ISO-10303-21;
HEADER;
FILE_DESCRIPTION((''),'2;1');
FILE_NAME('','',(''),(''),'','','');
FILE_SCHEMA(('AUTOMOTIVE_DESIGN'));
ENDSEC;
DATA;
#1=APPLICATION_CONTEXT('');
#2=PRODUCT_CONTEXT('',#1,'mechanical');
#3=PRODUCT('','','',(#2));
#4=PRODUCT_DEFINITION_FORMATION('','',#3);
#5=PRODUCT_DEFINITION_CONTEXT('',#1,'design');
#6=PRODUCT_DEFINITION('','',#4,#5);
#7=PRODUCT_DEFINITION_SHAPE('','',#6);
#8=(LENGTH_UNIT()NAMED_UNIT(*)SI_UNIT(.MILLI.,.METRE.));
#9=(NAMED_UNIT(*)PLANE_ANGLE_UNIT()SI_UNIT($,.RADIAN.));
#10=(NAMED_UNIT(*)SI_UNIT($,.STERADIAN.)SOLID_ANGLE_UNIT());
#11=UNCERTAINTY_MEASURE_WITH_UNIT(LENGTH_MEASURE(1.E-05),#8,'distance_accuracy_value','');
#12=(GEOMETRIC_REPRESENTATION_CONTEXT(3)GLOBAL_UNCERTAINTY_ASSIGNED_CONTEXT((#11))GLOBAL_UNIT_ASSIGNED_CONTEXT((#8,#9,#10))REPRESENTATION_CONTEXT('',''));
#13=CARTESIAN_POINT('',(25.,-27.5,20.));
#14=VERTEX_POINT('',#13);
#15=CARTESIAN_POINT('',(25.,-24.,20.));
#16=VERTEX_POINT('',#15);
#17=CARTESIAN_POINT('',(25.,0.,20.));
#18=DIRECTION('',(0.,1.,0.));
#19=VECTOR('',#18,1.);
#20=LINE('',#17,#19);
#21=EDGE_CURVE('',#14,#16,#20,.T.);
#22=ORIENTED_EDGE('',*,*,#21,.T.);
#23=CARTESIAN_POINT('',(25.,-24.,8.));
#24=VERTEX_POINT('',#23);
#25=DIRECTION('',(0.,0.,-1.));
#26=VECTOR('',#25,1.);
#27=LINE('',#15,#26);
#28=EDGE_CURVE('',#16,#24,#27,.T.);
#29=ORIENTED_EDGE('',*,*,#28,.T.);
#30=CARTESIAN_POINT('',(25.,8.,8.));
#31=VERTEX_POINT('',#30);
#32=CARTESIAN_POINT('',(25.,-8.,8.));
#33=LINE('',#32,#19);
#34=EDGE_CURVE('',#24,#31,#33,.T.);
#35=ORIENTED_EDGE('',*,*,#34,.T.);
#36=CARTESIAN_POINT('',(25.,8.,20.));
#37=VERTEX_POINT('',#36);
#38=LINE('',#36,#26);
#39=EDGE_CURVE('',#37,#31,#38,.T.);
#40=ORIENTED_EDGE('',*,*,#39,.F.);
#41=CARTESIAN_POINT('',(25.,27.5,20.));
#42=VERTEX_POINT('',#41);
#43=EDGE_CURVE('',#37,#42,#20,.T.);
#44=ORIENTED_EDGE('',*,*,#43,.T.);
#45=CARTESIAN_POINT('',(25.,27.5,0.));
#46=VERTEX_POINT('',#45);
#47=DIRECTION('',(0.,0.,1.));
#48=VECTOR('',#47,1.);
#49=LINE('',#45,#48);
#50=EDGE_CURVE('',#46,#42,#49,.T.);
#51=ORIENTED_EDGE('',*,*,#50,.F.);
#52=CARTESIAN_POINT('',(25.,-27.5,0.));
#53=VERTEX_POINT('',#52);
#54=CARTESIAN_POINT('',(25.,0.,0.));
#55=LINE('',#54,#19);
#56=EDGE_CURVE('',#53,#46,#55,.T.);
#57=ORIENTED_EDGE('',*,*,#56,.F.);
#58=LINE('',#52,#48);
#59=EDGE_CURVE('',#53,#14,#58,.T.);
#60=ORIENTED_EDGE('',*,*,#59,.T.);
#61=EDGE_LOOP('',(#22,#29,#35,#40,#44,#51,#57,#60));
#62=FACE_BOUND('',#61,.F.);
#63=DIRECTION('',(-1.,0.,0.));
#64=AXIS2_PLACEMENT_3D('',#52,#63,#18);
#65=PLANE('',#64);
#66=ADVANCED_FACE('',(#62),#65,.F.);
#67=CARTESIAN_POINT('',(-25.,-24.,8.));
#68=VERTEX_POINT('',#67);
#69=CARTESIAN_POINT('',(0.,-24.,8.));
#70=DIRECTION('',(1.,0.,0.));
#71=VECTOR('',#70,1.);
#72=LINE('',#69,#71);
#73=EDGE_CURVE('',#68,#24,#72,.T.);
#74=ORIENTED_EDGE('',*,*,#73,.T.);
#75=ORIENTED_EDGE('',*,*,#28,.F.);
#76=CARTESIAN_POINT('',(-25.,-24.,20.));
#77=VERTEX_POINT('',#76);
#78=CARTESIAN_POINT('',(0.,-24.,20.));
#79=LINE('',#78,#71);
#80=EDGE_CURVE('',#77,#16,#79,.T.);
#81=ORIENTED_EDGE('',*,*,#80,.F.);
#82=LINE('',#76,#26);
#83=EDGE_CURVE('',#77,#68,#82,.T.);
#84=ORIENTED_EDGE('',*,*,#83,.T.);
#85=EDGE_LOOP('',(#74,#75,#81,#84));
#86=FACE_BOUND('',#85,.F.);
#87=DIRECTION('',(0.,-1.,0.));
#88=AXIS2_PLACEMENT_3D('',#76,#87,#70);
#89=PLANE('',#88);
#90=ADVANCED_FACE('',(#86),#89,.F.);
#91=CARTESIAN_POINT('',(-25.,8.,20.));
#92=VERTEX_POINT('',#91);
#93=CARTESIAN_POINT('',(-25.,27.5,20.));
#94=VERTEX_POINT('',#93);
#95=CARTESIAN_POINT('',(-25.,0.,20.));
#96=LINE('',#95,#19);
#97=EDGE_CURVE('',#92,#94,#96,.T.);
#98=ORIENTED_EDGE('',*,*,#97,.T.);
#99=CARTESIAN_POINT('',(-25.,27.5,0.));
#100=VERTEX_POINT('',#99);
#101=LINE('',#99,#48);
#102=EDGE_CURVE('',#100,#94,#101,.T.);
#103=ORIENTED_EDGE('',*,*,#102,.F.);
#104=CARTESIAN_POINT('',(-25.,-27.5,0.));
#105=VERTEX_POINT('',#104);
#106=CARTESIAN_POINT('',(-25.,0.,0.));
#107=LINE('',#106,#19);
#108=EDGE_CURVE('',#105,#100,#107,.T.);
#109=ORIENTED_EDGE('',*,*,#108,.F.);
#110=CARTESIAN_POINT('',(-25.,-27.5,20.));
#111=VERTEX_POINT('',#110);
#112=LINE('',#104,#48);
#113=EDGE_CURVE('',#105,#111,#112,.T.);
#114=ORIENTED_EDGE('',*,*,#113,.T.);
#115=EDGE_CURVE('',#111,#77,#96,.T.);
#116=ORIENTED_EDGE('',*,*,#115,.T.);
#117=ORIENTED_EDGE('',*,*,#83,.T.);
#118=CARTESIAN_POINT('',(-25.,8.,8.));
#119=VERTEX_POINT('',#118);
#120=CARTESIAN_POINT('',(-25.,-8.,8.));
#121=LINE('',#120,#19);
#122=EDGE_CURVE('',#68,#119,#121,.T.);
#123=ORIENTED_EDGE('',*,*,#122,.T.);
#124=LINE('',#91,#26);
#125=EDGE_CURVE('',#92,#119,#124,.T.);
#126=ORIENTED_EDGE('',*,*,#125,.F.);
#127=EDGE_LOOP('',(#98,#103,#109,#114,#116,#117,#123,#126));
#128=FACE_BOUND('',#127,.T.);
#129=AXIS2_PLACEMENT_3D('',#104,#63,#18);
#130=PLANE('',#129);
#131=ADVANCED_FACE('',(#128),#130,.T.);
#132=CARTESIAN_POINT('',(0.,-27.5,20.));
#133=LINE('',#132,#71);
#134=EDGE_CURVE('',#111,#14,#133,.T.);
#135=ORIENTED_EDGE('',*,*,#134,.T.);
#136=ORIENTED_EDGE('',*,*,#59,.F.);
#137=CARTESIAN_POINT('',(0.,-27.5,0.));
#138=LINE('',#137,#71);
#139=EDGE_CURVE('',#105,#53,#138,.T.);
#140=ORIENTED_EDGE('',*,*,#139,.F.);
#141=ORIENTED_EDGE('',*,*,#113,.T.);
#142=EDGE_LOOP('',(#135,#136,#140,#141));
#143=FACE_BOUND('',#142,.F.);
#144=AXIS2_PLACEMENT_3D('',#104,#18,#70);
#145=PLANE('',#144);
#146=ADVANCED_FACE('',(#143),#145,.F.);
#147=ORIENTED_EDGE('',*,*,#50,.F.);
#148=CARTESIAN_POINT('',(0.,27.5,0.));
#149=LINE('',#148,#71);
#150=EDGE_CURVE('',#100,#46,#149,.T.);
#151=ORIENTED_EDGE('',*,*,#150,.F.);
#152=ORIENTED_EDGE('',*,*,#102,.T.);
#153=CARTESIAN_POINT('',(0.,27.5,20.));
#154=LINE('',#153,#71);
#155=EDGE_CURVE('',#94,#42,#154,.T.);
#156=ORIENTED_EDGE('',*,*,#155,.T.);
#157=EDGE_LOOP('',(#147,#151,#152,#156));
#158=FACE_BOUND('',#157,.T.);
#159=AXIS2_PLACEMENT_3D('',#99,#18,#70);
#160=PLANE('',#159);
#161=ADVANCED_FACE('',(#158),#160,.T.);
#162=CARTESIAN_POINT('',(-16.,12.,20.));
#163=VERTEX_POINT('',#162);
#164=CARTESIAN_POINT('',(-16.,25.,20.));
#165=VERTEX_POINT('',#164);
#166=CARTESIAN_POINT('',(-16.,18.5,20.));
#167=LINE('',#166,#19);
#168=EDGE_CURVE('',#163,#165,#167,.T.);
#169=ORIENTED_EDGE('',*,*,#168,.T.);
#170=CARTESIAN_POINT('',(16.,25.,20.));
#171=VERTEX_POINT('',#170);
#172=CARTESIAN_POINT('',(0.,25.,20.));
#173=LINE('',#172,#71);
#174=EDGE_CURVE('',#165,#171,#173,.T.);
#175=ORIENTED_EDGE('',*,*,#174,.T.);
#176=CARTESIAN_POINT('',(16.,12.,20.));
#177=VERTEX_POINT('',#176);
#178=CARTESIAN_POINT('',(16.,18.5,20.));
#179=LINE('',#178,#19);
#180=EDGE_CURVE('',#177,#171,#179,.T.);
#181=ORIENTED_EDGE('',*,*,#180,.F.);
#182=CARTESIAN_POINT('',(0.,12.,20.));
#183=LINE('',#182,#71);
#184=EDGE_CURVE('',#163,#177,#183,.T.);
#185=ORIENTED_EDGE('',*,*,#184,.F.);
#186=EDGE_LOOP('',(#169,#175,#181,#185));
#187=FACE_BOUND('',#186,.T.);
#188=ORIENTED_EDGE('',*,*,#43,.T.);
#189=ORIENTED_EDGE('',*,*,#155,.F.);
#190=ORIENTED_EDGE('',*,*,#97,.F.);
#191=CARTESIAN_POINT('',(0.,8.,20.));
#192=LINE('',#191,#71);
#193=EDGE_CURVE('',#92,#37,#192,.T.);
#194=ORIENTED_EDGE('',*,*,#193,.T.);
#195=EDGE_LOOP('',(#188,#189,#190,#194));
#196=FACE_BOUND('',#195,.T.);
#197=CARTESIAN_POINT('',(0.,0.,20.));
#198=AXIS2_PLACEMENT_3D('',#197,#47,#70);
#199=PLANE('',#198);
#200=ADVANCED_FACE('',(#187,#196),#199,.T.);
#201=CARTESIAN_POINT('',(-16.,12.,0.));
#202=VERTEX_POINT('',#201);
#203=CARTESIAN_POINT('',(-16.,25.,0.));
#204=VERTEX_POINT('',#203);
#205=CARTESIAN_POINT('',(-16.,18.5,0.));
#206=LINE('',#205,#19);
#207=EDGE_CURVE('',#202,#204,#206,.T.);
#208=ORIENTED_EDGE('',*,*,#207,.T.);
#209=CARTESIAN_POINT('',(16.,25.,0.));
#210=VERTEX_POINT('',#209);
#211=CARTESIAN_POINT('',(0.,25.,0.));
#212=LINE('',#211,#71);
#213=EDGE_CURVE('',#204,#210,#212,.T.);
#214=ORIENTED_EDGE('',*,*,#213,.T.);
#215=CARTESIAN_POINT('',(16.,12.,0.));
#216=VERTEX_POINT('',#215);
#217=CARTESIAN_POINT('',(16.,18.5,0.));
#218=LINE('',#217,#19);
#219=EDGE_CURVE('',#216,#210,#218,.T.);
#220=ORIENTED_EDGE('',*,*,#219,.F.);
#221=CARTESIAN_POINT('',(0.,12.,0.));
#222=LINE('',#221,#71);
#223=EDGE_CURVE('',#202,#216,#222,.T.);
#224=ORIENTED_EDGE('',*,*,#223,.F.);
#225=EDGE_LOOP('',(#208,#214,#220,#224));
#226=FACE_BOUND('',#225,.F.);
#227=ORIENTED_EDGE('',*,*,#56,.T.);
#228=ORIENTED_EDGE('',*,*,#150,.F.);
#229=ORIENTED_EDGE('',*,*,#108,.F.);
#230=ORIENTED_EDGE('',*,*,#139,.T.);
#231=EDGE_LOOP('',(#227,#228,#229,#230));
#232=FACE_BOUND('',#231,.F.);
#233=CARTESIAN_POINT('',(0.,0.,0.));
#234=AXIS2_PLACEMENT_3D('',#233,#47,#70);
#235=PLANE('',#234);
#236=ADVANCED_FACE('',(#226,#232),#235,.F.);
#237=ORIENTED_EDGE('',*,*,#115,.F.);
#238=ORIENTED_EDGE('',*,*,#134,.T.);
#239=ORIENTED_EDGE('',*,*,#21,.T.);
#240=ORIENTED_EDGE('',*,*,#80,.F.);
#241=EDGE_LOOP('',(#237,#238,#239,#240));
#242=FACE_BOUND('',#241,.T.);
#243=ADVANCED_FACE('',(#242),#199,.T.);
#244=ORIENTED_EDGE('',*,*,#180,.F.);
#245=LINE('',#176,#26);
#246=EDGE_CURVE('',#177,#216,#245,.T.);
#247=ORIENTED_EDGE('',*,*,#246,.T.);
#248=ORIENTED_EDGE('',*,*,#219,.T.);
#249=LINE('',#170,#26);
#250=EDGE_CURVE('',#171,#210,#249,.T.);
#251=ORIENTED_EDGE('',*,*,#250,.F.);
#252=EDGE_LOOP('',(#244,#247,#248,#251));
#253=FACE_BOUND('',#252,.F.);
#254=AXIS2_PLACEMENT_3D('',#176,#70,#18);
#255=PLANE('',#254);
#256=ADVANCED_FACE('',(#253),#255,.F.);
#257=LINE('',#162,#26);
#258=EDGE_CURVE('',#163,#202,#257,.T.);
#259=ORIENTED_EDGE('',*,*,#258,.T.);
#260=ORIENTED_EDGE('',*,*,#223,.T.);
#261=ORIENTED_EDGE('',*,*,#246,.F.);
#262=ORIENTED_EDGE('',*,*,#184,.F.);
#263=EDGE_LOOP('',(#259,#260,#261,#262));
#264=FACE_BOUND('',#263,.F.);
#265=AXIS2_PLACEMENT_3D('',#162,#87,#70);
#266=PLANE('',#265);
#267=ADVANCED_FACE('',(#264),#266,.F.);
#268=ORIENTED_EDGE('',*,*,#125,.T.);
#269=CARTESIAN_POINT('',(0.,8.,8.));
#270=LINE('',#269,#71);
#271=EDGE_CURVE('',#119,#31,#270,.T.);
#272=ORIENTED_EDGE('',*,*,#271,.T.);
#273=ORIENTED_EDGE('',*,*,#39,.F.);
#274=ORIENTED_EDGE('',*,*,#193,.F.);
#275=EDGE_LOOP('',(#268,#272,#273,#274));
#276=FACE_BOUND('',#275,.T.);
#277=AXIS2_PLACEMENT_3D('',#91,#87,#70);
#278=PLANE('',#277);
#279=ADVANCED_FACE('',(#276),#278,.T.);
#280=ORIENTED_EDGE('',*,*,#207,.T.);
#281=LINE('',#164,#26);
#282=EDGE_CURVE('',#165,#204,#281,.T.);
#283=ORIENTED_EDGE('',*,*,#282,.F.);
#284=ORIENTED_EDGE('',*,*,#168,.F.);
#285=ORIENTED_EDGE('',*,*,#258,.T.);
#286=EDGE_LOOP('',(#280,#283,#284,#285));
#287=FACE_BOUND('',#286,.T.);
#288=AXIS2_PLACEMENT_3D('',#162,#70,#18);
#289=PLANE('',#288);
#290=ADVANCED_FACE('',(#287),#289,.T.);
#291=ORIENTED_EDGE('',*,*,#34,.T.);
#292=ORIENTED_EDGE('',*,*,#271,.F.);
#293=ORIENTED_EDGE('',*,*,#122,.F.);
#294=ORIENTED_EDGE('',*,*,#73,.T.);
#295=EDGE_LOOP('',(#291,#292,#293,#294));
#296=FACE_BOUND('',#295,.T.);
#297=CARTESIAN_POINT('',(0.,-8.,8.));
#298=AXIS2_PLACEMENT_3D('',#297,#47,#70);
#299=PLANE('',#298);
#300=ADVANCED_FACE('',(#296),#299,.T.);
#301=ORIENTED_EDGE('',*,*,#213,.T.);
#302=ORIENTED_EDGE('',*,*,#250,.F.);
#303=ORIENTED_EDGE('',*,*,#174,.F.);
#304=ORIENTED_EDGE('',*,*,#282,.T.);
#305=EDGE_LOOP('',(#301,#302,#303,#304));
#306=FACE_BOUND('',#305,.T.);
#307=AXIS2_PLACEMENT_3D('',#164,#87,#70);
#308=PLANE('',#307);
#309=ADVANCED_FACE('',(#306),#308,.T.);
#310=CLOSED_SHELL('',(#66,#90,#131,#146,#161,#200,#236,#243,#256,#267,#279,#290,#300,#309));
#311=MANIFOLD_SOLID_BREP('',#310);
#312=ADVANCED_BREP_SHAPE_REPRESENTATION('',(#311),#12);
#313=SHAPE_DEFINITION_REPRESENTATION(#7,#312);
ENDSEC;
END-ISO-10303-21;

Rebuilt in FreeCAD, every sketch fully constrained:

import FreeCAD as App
import Part
import Sketcher


def add_polygon(sketch, points):
    """Adds a closed chain of lines whose ends are joined by coincident constraints."""
    first, n = sketch.GeometryCount, len(points)
    for a, b in zip(points, points[1:] + points[:1]):
        sketch.addGeometry(Part.LineSegment(App.Vector(*a, 0), App.Vector(*b, 0)), False)
    for i in range(n):
        sketch.addConstraint(Sketcher.Constraint("Coincident", first + i, 2, first + (i + 1) % n, 1))

doc = App.newDocument("Part")
params = doc.addObject("Spreadsheet::Sheet", "Params")
for row, (alias, value) in enumerate([
    ("sketch1_width", "50 mm"),
    ("sketch1_height", "55 mm"),
    ("pad1_length", "20 mm"),
    ("sketch2_width", "50 mm"),
    ("sketch2_height", "32 mm"),
    ("pocket1_length", "12 mm"),
    ("sketch3_width", "32 mm"),
    ("sketch3_height", "13 mm"),
    ("pocket2_length", "20 mm"),
], start=1):
    params.set(f"A{row}", alias)
    params.set(f"B{row}", "=" + value)
    params.setAlias(f"B{row}", alias)

body = doc.addObject("PartDesign::Body", "Body")

# Sketch on XY plane
sketch1 = body.newObject("Sketcher::SketchObject", "Sketch")
sketch1.AttachmentSupport = (doc.getObject("XY_Plane"), [""])
sketch1.MapMode = "FlatFace"
add_polygon(sketch1, [(-25, 28), (-25, -28), (25, -28), (25, 28)])  # lines 0-3
sketch1.addConstraint(Sketcher.Constraint("Vertical", 0))
sketch1.addConstraint(Sketcher.Constraint("Horizontal", 1))
sketch1.addConstraint(Sketcher.Constraint("Vertical", 2))
sketch1.addConstraint(Sketcher.Constraint("Horizontal", 3))
sketch1.addConstraint(Sketcher.Constraint("Symmetric", 0, 2, 2, 2, -1, 1))
sketch1.addConstraint(Sketcher.Constraint("DistanceX", 1, 1, 1, 2, 50.0))
sketch1.addConstraint(Sketcher.Constraint("DistanceY", 0, 2, 0, 1, 55.0))
sketch1.setExpression("Constraints[9]", "Params.sketch1_width")
sketch1.setExpression("Constraints[10]", "Params.sketch1_height")
pad1 = body.newObject("PartDesign::Pad", "Pad")
pad1.Profile = sketch1
pad1.setExpression("Length", "Params.pad1_length")

# Sketch on XY plane
sketch2 = body.newObject("Sketcher::SketchObject", "Sketch001")
sketch2.AttachmentSupport = (doc.getObject("XY_Plane"), [""])
sketch2.MapMode = "FlatFace"
sketch2.AttachmentOffset = App.Placement(App.Vector(0, 0, 20), App.Rotation())
add_polygon(sketch2, [(-25, 8), (-25, -24), (25, -24), (25, 8)])  # lines 0-3
sketch2.addConstraint(Sketcher.Constraint("Vertical", 0))
sketch2.addConstraint(Sketcher.Constraint("Horizontal", 1))
sketch2.addConstraint(Sketcher.Constraint("Vertical", 2))
sketch2.addConstraint(Sketcher.Constraint("Horizontal", 3))
sketch2.addConstraint(Sketcher.Constraint("DistanceX", 1, 1, 1, 2, 50.0))
sketch2.addConstraint(Sketcher.Constraint("DistanceY", 0, 2, 0, 1, 32.0))
sketch2.addConstraint(Sketcher.Constraint("DistanceX", 0, 2, -1, 1, 25.0))
sketch2.addConstraint(Sketcher.Constraint("DistanceY", 0, 2, -1, 1, 24.0))
sketch2.setExpression("Constraints[8]", "Params.sketch2_width")
sketch2.setExpression("Constraints[9]", "Params.sketch2_height")
pocket1 = body.newObject("PartDesign::Pocket", "Pocket")
pocket1.Profile = sketch2
pocket1.setExpression("Length", "Params.pocket1_length")

# Sketch on XY plane
sketch3 = body.newObject("Sketcher::SketchObject", "Sketch002")
sketch3.AttachmentSupport = (doc.getObject("XY_Plane"), [""])
sketch3.MapMode = "FlatFace"
sketch3.AttachmentOffset = App.Placement(App.Vector(0, 0, 20), App.Rotation())
add_polygon(sketch3, [(-16, 25), (-16, 12), (16, 12), (16, 25)])  # lines 0-3
sketch3.addConstraint(Sketcher.Constraint("Vertical", 0))
sketch3.addConstraint(Sketcher.Constraint("Horizontal", 1))
sketch3.addConstraint(Sketcher.Constraint("Vertical", 2))
sketch3.addConstraint(Sketcher.Constraint("Horizontal", 3))
sketch3.addConstraint(Sketcher.Constraint("DistanceX", 1, 1, 1, 2, 32.0))
sketch3.addConstraint(Sketcher.Constraint("DistanceY", 0, 2, 0, 1, 13.0))
sketch3.addConstraint(Sketcher.Constraint("DistanceX", 0, 2, -1, 1, 16.0))
sketch3.addConstraint(Sketcher.Constraint("DistanceY", -1, 1, 0, 2, 12.0))
sketch3.setExpression("Constraints[8]", "Params.sketch3_width")
sketch3.setExpression("Constraints[9]", "Params.sketch3_height")
pocket2 = body.newObject("PartDesign::Pocket", "Pocket001")
pocket2.Profile = sketch3
pocket2.setExpression("Length", "Params.pocket2_length")

doc.recompute()
